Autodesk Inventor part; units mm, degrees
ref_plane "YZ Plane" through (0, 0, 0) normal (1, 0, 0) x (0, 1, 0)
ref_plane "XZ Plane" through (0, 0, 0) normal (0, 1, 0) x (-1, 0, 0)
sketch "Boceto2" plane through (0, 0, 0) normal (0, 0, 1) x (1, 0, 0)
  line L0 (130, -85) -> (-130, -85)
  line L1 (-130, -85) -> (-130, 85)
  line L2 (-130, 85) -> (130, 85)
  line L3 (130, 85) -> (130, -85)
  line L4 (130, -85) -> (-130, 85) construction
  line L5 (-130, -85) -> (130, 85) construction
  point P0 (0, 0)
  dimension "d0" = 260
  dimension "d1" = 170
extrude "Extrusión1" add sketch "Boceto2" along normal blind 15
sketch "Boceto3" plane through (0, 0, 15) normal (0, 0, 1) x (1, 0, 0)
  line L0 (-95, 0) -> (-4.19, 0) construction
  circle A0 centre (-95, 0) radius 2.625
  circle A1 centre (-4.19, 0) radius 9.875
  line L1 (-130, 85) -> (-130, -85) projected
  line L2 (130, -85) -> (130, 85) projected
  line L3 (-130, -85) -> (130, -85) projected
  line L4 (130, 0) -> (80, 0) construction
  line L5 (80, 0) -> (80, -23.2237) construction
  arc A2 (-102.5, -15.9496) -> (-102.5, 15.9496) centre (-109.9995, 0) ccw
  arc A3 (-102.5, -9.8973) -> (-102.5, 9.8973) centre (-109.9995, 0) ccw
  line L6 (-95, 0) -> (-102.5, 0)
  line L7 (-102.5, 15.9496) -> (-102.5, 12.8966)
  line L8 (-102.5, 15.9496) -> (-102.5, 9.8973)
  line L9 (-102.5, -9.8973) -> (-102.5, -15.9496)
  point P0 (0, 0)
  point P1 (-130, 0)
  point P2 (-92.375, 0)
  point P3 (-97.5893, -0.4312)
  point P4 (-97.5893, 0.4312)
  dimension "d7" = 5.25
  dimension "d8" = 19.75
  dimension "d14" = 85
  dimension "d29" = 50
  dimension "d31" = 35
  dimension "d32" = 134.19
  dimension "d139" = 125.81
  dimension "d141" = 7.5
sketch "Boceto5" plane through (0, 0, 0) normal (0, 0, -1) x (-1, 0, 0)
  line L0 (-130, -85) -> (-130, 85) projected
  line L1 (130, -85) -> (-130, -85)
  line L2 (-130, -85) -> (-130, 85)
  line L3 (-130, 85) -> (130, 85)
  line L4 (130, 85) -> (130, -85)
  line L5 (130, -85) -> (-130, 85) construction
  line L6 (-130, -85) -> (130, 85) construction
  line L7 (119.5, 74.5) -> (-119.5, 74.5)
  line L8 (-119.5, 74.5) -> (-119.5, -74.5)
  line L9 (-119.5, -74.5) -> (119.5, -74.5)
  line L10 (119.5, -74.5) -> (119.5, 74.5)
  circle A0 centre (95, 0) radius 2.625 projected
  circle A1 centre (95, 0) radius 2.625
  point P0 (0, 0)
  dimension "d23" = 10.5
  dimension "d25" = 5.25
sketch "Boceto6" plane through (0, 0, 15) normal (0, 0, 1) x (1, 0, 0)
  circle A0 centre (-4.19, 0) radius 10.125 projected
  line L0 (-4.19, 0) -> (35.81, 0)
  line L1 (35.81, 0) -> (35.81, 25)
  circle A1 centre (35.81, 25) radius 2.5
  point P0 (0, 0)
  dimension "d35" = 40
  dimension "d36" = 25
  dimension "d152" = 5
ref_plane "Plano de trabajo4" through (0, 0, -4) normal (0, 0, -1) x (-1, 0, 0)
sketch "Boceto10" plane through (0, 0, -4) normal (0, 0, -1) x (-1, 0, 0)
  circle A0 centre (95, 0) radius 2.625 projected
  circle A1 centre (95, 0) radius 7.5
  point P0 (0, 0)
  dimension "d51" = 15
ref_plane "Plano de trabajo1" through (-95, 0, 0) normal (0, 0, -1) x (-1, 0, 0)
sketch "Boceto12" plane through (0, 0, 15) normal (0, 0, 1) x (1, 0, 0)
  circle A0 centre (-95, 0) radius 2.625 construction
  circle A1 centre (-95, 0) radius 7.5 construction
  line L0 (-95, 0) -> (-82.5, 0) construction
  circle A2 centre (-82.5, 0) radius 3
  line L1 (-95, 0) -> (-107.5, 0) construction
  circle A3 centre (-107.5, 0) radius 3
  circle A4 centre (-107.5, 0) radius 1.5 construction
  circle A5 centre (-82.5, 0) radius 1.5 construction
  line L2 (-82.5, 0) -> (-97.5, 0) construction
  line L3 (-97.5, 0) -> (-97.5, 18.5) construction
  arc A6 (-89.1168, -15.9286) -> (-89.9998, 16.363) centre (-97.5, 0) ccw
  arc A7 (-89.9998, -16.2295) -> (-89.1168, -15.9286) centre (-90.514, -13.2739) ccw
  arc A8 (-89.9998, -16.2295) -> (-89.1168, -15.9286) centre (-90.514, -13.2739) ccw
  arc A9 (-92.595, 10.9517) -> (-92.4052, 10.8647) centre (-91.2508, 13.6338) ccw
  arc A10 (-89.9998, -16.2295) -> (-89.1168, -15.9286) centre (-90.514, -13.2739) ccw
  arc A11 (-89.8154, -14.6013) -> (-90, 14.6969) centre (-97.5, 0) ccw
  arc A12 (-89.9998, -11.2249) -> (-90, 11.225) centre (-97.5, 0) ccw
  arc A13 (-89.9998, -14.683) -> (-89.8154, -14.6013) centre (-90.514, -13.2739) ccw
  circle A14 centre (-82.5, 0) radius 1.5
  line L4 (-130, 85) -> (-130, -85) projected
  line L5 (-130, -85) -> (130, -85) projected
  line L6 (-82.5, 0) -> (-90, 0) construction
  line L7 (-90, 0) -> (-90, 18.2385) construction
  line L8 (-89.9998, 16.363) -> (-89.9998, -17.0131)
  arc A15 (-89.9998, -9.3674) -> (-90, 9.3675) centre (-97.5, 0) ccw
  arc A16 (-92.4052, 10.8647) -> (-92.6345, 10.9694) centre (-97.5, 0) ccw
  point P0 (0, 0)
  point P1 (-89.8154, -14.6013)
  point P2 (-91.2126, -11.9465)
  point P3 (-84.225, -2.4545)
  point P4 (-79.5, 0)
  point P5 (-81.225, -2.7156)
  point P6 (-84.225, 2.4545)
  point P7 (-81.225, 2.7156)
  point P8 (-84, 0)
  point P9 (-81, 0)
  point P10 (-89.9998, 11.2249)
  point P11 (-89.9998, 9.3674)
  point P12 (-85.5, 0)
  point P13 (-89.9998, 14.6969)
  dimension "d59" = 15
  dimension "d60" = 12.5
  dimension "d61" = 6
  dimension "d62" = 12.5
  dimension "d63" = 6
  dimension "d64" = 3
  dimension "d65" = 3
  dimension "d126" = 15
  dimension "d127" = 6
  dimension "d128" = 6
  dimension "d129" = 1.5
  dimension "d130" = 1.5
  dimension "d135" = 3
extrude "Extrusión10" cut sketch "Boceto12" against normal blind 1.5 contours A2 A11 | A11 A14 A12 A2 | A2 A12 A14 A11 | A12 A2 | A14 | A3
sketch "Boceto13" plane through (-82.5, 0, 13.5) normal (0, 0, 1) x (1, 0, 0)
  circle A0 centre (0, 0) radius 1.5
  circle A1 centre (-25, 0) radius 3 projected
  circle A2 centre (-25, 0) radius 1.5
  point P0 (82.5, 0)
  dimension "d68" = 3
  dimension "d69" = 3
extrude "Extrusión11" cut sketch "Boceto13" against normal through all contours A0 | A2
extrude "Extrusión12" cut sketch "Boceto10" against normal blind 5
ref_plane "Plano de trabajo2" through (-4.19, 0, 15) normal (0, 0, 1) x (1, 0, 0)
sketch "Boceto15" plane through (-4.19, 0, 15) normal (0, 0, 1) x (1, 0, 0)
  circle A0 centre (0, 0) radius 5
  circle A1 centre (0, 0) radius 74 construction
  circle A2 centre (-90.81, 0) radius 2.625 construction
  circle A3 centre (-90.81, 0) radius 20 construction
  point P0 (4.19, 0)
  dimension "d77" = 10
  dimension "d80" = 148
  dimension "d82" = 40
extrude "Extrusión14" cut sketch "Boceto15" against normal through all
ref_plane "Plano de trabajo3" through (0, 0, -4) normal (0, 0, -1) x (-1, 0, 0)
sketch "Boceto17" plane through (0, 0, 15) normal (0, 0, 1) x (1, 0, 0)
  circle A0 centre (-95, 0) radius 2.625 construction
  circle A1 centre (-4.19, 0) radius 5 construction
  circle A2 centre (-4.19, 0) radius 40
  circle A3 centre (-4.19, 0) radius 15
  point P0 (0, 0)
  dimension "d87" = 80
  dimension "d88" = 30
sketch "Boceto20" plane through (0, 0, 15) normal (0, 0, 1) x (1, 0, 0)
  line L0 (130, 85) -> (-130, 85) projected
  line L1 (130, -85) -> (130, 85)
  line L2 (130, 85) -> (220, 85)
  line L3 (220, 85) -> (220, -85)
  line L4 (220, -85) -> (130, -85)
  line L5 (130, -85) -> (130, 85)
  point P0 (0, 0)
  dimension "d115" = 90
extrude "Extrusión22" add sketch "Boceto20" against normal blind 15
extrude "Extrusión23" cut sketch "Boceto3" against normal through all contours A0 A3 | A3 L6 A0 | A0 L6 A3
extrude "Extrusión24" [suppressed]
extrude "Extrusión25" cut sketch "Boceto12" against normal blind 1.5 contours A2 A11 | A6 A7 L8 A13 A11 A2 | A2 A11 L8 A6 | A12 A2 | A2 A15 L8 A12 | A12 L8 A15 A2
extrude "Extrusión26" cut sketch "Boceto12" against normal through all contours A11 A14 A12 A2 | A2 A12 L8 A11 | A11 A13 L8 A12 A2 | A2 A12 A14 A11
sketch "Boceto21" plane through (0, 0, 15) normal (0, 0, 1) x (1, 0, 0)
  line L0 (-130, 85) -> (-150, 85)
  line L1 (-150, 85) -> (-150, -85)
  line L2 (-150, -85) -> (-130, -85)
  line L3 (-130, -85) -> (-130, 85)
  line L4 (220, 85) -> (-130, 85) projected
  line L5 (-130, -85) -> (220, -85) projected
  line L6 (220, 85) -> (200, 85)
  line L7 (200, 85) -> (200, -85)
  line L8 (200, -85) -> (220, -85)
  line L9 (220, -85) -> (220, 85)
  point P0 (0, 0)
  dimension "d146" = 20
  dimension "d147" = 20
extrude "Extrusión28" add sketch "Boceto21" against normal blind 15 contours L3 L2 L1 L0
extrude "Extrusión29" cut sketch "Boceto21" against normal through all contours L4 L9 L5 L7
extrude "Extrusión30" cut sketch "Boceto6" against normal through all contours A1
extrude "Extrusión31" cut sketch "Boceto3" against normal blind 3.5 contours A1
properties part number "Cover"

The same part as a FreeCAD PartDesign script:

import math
import FreeCAD as App
import Part
import Sketcher

V = App.Vector


def add_polygon(sketch, points):
    """Adds a closed chain of lines whose ends are joined by coincident constraints."""
    first, n = sketch.GeometryCount, len(points)
    for a, b in zip(points, points[1:] + points[:1]):
        sketch.addGeometry(Part.LineSegment(App.Vector(*a, 0), App.Vector(*b, 0)), False)
    for i in range(n):
        sketch.addConstraint(Sketcher.Constraint("Coincident", first + i, 2, first + (i + 1) % n, 1))

doc = App.newDocument("Part")
body = doc.addObject("PartDesign::Body", "Body")

# Sketch on XY plane
sketch1 = doc.addObject("Sketcher::SketchObject", "Sketch")
body.addObject(sketch1)
sketch1.AttachmentSupport = (doc.XY_Plane, [""])
sketch1.MapMode = "FlatFace"
add_polygon(sketch1, [(-130, -85), (130, -85), (130, 85), (-130, 85)])  # lines 0-3
sketch1.addConstraint([
    Sketcher.Constraint("Horizontal", 0),
    Sketcher.Constraint("Vertical", 1),
    Sketcher.Constraint("Horizontal", 2),
    Sketcher.Constraint("Vertical", 3),
    Sketcher.Constraint("Symmetric", 0, 2, 2, 2, -1, 1),
    Sketcher.Constraint("DistanceX", 0, 1, 0, 2, 260.0),
    Sketcher.Constraint("DistanceY", 1, 1, 1, 2, 170.0),
])
pad1 = doc.addObject("PartDesign::Pad", "Pad")
body.addObject(pad1)
pad1.Profile = sketch1
pad1.Length = 15

# Sketch on XY plane
sketch2 = doc.addObject("Sketcher::SketchObject", "Sketch001")
body.addObject(sketch2)
sketch2.AttachmentSupport = (doc.XY_Plane, [""])
sketch2.MapMode = "FlatFace"
sketch2.AttachmentOffset = App.Placement(V(0, 0, 15), App.Rotation())
sketch2.addGeometry([
    Part.Circle(V(-82.5, 0, 0), V(0, 0, 1), 3),
    Part.Circle(V(-107.5, 0, 0), V(0, 0, 1), 3),
], False)
sketch2.addConstraint([
    Sketcher.Constraint("Equal", 0, 1),
    Sketcher.Constraint("PointOnObject", 0, 3, -1),
    Sketcher.Constraint("PointOnObject", 1, 3, -1),
    Sketcher.Constraint("Diameter", 0, 6.0),
    Sketcher.Constraint("DistanceX", 1, 3, 0, 3, 25.0),
    Sketcher.Constraint("DistanceX", 0, 3, -1, 1, 82.5),
])
pocket1 = doc.addObject("PartDesign::Pocket", "Pocket")
body.addObject(pocket1)
pocket1.Profile = sketch2
pocket1.Length = 1.5

# Sketch on XY plane
sketch3 = doc.addObject("Sketcher::SketchObject", "Sketch002")
body.addObject(sketch3)
sketch3.AttachmentSupport = (doc.XY_Plane, [""])
sketch3.MapMode = "FlatFace"
sketch3.AttachmentOffset = App.Placement(V(0, 0, 13.5), App.Rotation())
sketch3.addGeometry([
    Part.Circle(V(-82.5, 0, 0), V(0, 0, 1), 1.5),
    Part.Circle(V(-107.5, 0, 0), V(0, 0, 1), 1.5),
], False)
sketch3.addConstraint([
    Sketcher.Constraint("Equal", 0, 1),
    Sketcher.Constraint("PointOnObject", 0, 3, -1),
    Sketcher.Constraint("PointOnObject", 1, 3, -1),
    Sketcher.Constraint("Diameter", 0, 3.0),
    Sketcher.Constraint("DistanceX", 1, 3, 0, 3, 25.0),
    Sketcher.Constraint("DistanceX", 0, 3, -1, 1, 82.5),
])
pocket2 = doc.addObject("PartDesign::Pocket", "Pocket001")
body.addObject(pocket2)
pocket2.Profile = sketch3
pocket2.Type = "ThroughAll"

# Sketch on XY plane
sketch4 = doc.addObject("Sketcher::SketchObject", "Sketch003")
body.addObject(sketch4)
sketch4.AttachmentSupport = (doc.XY_Plane, [""])
sketch4.MapMode = "FlatFace"
sketch4.AttachmentOffset = App.Placement(V(0, 0, -4), App.Rotation())
sketch4.addGeometry([
    Part.Circle(V(-95, 0, 0), V(0, 0, 1), 7.5),
    Part.Circle(V(-95, 0, 0), V(0, 0, 1), 2.6),
], False)
sketch4.addConstraint([
    Sketcher.Constraint("Coincident", 1, 3, 0, 3),
    Sketcher.Constraint("PointOnObject", 0, 3, -1),
    Sketcher.Constraint("Diameter", 0, 15.0),
    Sketcher.Constraint("Diameter", 1, 5.25),
    Sketcher.Constraint("DistanceX", 0, 3, -1, 1, 95.0),
])
pocket3 = doc.addObject("PartDesign::Pocket", "Pocket002")
body.addObject(pocket3)
pocket3.Profile = sketch4
pocket3.Length = 5
pocket3.Reversed = True

# Sketch on XY plane
sketch5 = doc.addObject("Sketcher::SketchObject", "Sketch004")
body.addObject(sketch5)
sketch5.AttachmentSupport = (doc.XY_Plane, [""])
sketch5.MapMode = "FlatFace"
sketch5.AttachmentOffset = App.Placement(V(0, 0, 15), App.Rotation())
sketch5.addGeometry(Part.Circle(V(-4, 0, 0), V(0, 0, 1), 5), False)
sketch5.addConstraint([
    Sketcher.Constraint("PointOnObject", 0, 3, -1),
    Sketcher.Constraint("Diameter", 0, 10.0),
    Sketcher.Constraint("DistanceX", 0, 3, -1, 1, 4.19),
])
pocket4 = doc.addObject("PartDesign::Pocket", "Pocket003")
body.addObject(pocket4)
pocket4.Profile = sketch5
pocket4.Type = "ThroughAll"

# Sketch on XY plane
sketch6 = doc.addObject("Sketcher::SketchObject", "Sketch005")
body.addObject(sketch6)
sketch6.AttachmentSupport = (doc.XY_Plane, [""])
sketch6.MapMode = "FlatFace"
sketch6.AttachmentOffset = App.Placement(V(0, 0, 15), App.Rotation())
add_polygon(sketch6, [(130, 85), (130, -85), (220, -85), (220, 85)])  # lines 0-3
sketch6.addConstraint([
    Sketcher.Constraint("Vertical", 0),
    Sketcher.Constraint("Horizontal", 1),
    Sketcher.Constraint("Vertical", 2),
    Sketcher.Constraint("Horizontal", 3),
    Sketcher.Constraint("DistanceX", 1, 1, 1, 2, 90.0),
    Sketcher.Constraint("DistanceY", 0, 2, 0, 1, 170.0),
    Sketcher.Constraint("DistanceX", -1, 1, 0, 2, 130.0),
    Sketcher.Constraint("DistanceY", 0, 2, -1, 1, 85.0),
])
pad2 = doc.addObject("PartDesign::Pad", "Pad001")
body.addObject(pad2)
pad2.Profile = sketch6
pad2.Length = 15
pad2.Reversed = True

# Sketch on XY plane
sketch7 = doc.addObject("Sketcher::SketchObject", "Sketch006")
body.addObject(sketch7)
sketch7.AttachmentSupport = (doc.XY_Plane, [""])
sketch7.MapMode = "FlatFace"
sketch7.AttachmentOffset = App.Placement(V(0, 0, 15), App.Rotation())
sketch7.addGeometry(Part.Circle(V(-95, 0, 0), V(0, 0, 1), 2.6), False)
sketch7.addConstraint([
    Sketcher.Constraint("PointOnObject", 0, 3, -1),
    Sketcher.Constraint("Diameter", 0, 5.25),
    Sketcher.Constraint("DistanceX", 0, 3, -1, 1, 95.0),
])
pocket5 = doc.addObject("PartDesign::Pocket", "Pocket004")
body.addObject(pocket5)
pocket5.Profile = sketch7
pocket5.Type = "ThroughAll"

# Sketch on XY plane
sketch8 = doc.addObject("Sketcher::SketchObject", "Sketch007")
body.addObject(sketch8)
sketch8.AttachmentSupport = (doc.XY_Plane, [""])
sketch8.MapMode = "FlatFace"
sketch8.AttachmentOffset = App.Placement(V(0, 0, 15), App.Rotation())
sketch8.addGeometry([
    Part.ArcOfCircle(Part.Circle(V(-90.52, -13.27, 0), V(0, 0, 1), 1.51), math.radians(-69.95), math.radians(-62.26)),  # 0
    Part.LineSegment(V(-90, -14.68, 0), V(-90, -16.23, 0)),  # 1
    Part.ArcOfCircle(Part.Circle(V(-90.51, -13.28, 0), V(0, 0, 1), 3), math.radians(-80.13), math.radians(-62.23)),  # 2
    Part.ArcOfCircle(Part.Circle(V(-97.5, 0, 0), V(0, 0, 1), 18), math.radians(-62), math.radians(65)),  # 3
    Part.LineSegment(V(-90, 16.36, 0), V(-90, 14.7, 0)),  # 4
    Part.ArcOfCircle(Part.Circle(V(-97.5, 0, 0), V(0, 0, 1), 16.5), math.radians(-62), math.radians(63)),  # 5
    Part.LineSegment(V(-90, 11.22, 0), V(-90, 9.37, 0)),  # 6
    Part.ArcOfCircle(Part.Circle(V(-97.5, 0, 0), V(0, 0, 1), 12), math.radians(-51), math.radians(51)),  # 7
    Part.LineSegment(V(-90, -9.37, 0), V(-90, -11.22, 0)),  # 8
    Part.ArcOfCircle(Part.Circle(V(-97.5, 0, 0), V(0, 0, 1), 13.5), math.radians(-56), math.radians(56)),  # 9
], False)
sketch8.addConstraint([
    Sketcher.Constraint("Coincident", 0, 1, 1, 1),
    Sketcher.Constraint("Coincident", 1, 2, 2, 1),
    Sketcher.Constraint("Tangent", 2, 2, 3, 1),
    Sketcher.Constraint("Coincident", 3, 2, 4, 1),
    Sketcher.Constraint("Coincident", 4, 2, 5, 2),
    Sketcher.Constraint("Tangent", 5, 1, 0, 2),
    Sketcher.Constraint("Coincident", 6, 2, 7, 2),
    Sketcher.Constraint("Coincident", 7, 1, 8, 1),
    Sketcher.Constraint("Coincident", 8, 2, 9, 1),
    Sketcher.Constraint("Coincident", 9, 2, 6, 1),
    Sketcher.Constraint("Vertical", 1),
    Sketcher.Constraint("Vertical", 4),
    Sketcher.Constraint("Vertical", 6),
    Sketcher.Constraint("Vertical", 8),
    Sketcher.Constraint("Coincident", 5, 3, 3, 3),
    Sketcher.Constraint("Coincident", 7, 3, 3, 3),
    Sketcher.Constraint("Coincident", 9, 3, 3, 3),
    Sketcher.Constraint("Symmetric", 6, 2, 7, 1, -1),
    Sketcher.Constraint("Vertical", 1, 2, 3, 2),
    Sketcher.Constraint("Vertical", 4, 2, 6, 2),
    Sketcher.Constraint("Radius", 3, 18.0),
    Sketcher.Constraint("Radius", 7, 12.0),
    Sketcher.Constraint("Radius", 5, 16.5),
    Sketcher.Constraint("Radius", 9, 13.5),
    Sketcher.Constraint("DistanceX", 9, 2, -1, 1, 90.0),
    Sketcher.Constraint("Radius", 0, 1.505),
    Sketcher.Constraint("DistanceX", 3, 3, -1, 1, 97.5),
    Sketcher.Constraint("Radius", 2, 2.9974),
    Sketcher.Constraint("DistanceY", 1, 2, 1, 1, 1.5465),
    Sketcher.Constraint("DistanceX", 0, 3, -1, 1, 90.516),
])
pocket6 = doc.addObject("PartDesign::Pocket", "Pocket005")
body.addObject(pocket6)
pocket6.Profile = sketch8
pocket6.Length = 1.5

# Sketch on XY plane
sketch9 = doc.addObject("Sketcher::SketchObject", "Sketch008")
body.addObject(sketch9)
sketch9.AttachmentSupport = (doc.XY_Plane, [""])
sketch9.MapMode = "FlatFace"
sketch9.AttachmentOffset = App.Placement(V(0, 0, 15), App.Rotation())
sketch9.addGeometry([
    Part.ArcOfCircle(Part.Circle(V(-97.5, 0, 0), V(0, 0, 1), 16.5), math.radians(0), math.radians(63)),  # 0
    Part.LineSegment(V(-90, 14.7, 0), V(-90, 11.22, 0)),  # 1
    Part.ArcOfCircle(Part.Circle(V(-97.5, 0, 0), V(0, 0, 1), 13.5), math.radians(0), math.radians(56)),  # 2
    Part.ArcOfCircle(Part.Circle(V(-82.5, 0, 0), V(0, 0, 1), 1.5), math.radians(0), math.radians(180)),  # 3
    Part.ArcOfCircle(Part.Circle(V(-97.5, 0, 0), V(0, 0, 1), 16.5), math.radians(-62), math.radians(0)),  # 4
    Part.ArcOfCircle(Part.Circle(V(-82.5, 0, 0), V(0, 0, 1), 1.5), math.radians(-180), math.radians(0)),  # 5
    Part.ArcOfCircle(Part.Circle(V(-97.5, 0, 0), V(0, 0, 1), 13.5), math.radians(-56), math.radians(0)),  # 6
    Part.LineSegment(V(-90, -11.22, 0), V(-90, -14.68, 0)),  # 7
    Part.ArcOfCircle(Part.Circle(V(-90.52, -13.27, 0), V(0, 0, 1), 1.51), math.radians(-69.95), math.radians(-62.26)),  # 8
], False)
sketch9.addConstraint([
    Sketcher.Constraint("Coincident", 0, 2, 1, 1),
    Sketcher.Constraint("Coincident", 1, 2, 2, 2),
    Sketcher.Constraint("Tangent", 2, 1, 3, 2),
    Sketcher.Constraint("Tangent", 3, 1, 0, 1),
    Sketcher.Constraint("Tangent", 4, 2, 5, 2),
    Sketcher.Constraint("Tangent", 5, 1, 6, 2),
    Sketcher.Constraint("Coincident", 6, 1, 7, 1),
    Sketcher.Constraint("Coincident", 7, 2, 8, 1),
    Sketcher.Constraint("Tangent", 8, 2, 4, 1),
    Sketcher.Constraint("Vertical", 1),
    Sketcher.Constraint("Vertical", 7),
    Sketcher.Constraint("Coincident", 2, 3, 0, 3),
    Sketcher.Constraint("Coincident", 4, 3, 0, 3),
    Sketcher.Constraint("Coincident", 5, 3, 3, 3),
    Sketcher.Constraint("Coincident", 6, 3, 0, 3),
    Sketcher.Constraint("Equal", 0, 4),
    Sketcher.Constraint("Symmetric", 1, 2, 6, 1, -1),
    Sketcher.Constraint("PointOnObject", 3, 3, -1),
    Sketcher.Constraint("Radius", 3, 1.5),
    Sketcher.Constraint("DistanceX", 0, 3, 3, 3, 15.0),
    Sketcher.Constraint("DistanceX", 0, 2, -1, 1, 90.0),
    Sketcher.Constraint("DistanceX", 2, 1, -1, 1, 84.0),
    Sketcher.Constraint("Radius", 8, 1.505),
    Sketcher.Constraint("DistanceY", 7, 2, 7, 1, 3.458),
])
pocket7 = doc.addObject("PartDesign::Pocket", "Pocket006")
body.addObject(pocket7)
pocket7.Profile = sketch9
pocket7.Length = 16.0003

# Sketch on XY plane
sketch10 = doc.addObject("Sketcher::SketchObject", "Sketch009")
body.addObject(sketch10)
sketch10.AttachmentSupport = (doc.XY_Plane, [""])
sketch10.MapMode = "FlatFace"
sketch10.AttachmentOffset = App.Placement(V(0, 0, 15), App.Rotation())
add_polygon(sketch10, [(-130, -85), (-130, 85), (-150, 85), (-150, -85)])  # lines 0-3
sketch10.addConstraint([
    Sketcher.Constraint("Vertical", 0),
    Sketcher.Constraint("Horizontal", 1),
    Sketcher.Constraint("Vertical", 2),
    Sketcher.Constraint("Horizontal", 3),
    Sketcher.Constraint("DistanceX", 1, 2, 1, 1, 20.0),
    Sketcher.Constraint("DistanceY", 0, 1, 0, 2, 170.0),
    Sketcher.Constraint("DistanceX", 0, 2, -1, 1, 130.0),
    Sketcher.Constraint("DistanceY", -1, 1, 0, 2, 85.0),
])
pad3 = doc.addObject("PartDesign::Pad", "Pad002")
body.addObject(pad3)
pad3.Profile = sketch10
pad3.Length = 15
pad3.Reversed = True

# Sketch on XY plane
sketch11 = doc.addObject("Sketcher::SketchObject", "Sketch010")
body.addObject(sketch11)
sketch11.AttachmentSupport = (doc.XY_Plane, [""])
sketch11.MapMode = "FlatFace"
sketch11.AttachmentOffset = App.Placement(V(0, 0, 15), App.Rotation())
add_polygon(sketch11, [(220, 85), (200, 85), (200, -85), (220, -85)])  # lines 0-3
sketch11.addConstraint([
    Sketcher.Constraint("Horizontal", 0),
    Sketcher.Constraint("Vertical", 1),
    Sketcher.Constraint("Horizontal", 2),
    Sketcher.Constraint("Vertical", 3),
    Sketcher.Constraint("DistanceX", 0, 2, 0, 1, 20.0),
    Sketcher.Constraint("DistanceY", 1, 2, 1, 1, 170.0),
    Sketcher.Constraint("DistanceX", -1, 1, 0, 2, 200.0),
    Sketcher.Constraint("DistanceY", -1, 1, 0, 2, 85.0),
])
pocket8 = doc.addObject("PartDesign::Pocket", "Pocket007")
body.addObject(pocket8)
pocket8.Profile = sketch11
pocket8.Type = "ThroughAll"

# Sketch on XY plane
sketch12 = doc.addObject("Sketcher::SketchObject", "Sketch011")
body.addObject(sketch12)
sketch12.AttachmentSupport = (doc.XY_Plane, [""])
sketch12.MapMode = "FlatFace"
sketch12.AttachmentOffset = App.Placement(V(0, 0, 15), App.Rotation())
sketch12.addGeometry(Part.Circle(V(35.8, 25, 0), V(0, 0, 1), 2.5), False)
sketch12.addConstraint([
    Sketcher.Constraint("Diameter", 0, 5.0),
    Sketcher.Constraint("DistanceY", -1, 1, 0, 3, 25.0),
    Sketcher.Constraint("DistanceX", -1, 1, 0, 3, 35.81),
])
pocket9 = doc.addObject("PartDesign::Pocket", "Pocket008")
body.addObject(pocket9)
pocket9.Profile = sketch12
pocket9.Type = "ThroughAll"

# Sketch on XY plane
sketch13 = doc.addObject("Sketcher::SketchObject", "Sketch012")
body.addObject(sketch13)
sketch13.AttachmentSupport = (doc.XY_Plane, [""])
sketch13.MapMode = "FlatFace"
sketch13.AttachmentOffset = App.Placement(V(0, 0, 15), App.Rotation())
sketch13.addGeometry(Part.Circle(V(-4, 0, 0), V(0, 0, 1), 10), False)
sketch13.addConstraint([
    Sketcher.Constraint("PointOnObject", 0, 3, -1),
    Sketcher.Constraint("Diameter", 0, 19.75),
    Sketcher.Constraint("DistanceX", 0, 3, -1, 1, 4.19),
])
pocket10 = doc.addObject("PartDesign::Pocket", "Pocket009")
body.addObject(pocket10)
pocket10.Profile = sketch13
pocket10.Length = 3.5

doc.recompute()
